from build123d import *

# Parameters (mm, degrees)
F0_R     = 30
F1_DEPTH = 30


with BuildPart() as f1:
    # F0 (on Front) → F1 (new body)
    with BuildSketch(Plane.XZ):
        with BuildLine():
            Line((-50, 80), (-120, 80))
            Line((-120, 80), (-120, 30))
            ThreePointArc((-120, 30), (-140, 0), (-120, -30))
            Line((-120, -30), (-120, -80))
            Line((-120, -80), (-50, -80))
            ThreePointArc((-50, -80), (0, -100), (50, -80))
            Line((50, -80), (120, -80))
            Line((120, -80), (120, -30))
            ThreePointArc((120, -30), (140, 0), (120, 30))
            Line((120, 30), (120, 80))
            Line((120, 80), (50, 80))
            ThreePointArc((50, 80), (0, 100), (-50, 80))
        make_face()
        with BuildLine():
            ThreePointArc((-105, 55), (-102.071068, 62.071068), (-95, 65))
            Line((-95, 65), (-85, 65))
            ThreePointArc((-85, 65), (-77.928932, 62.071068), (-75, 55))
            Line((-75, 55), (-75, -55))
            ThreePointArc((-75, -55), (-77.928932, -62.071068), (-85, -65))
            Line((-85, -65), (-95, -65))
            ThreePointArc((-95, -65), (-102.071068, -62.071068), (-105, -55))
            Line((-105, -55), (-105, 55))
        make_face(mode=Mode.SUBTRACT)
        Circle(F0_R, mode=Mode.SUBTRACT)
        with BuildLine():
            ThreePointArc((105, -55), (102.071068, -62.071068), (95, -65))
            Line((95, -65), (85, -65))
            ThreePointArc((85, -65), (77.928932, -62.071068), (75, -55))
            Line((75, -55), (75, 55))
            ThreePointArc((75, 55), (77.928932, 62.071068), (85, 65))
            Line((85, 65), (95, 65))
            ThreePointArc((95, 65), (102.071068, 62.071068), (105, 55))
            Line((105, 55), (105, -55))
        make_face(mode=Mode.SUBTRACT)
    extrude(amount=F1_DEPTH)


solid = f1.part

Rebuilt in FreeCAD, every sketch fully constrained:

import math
import FreeCAD as App
import Part
import Sketcher

doc = App.newDocument("Part")
body = doc.addObject("PartDesign::Body", "Body")

sketch1 = doc.addObject("Sketcher::SketchObject", "Sketch")
body.addObject(sketch1)
sketch1.AttachmentSupport = (doc.XZ_Plane, [""])
sketch1.MapMode = "FlatFace"
sketch1.addGeometry([
    Part.LineSegment(App.Vector(-50, 80, 0), App.Vector(-120, 80, 0)),
    Part.LineSegment(App.Vector(-120, 80, 0), App.Vector(-120, 30, 0)),
    Part.ArcOfCircle(Part.Circle(App.Vector(-108, 0, 0), App.Vector(0, 0, 1), 32), math.radians(113), math.radians(247)),
    Part.LineSegment(App.Vector(-120, -30, 0), App.Vector(-120, -80, 0)),
    Part.LineSegment(App.Vector(-120, -80, 0), App.Vector(-50, -80, 0)),
    Part.ArcOfCircle(Part.Circle(App.Vector(0, -28, 0), App.Vector(0, 0, 1), 72), math.radians(-134), math.radians(-46)),
    Part.LineSegment(App.Vector(50, -80, 0), App.Vector(120, -80, 0)),
    Part.LineSegment(App.Vector(120, -80, 0), App.Vector(120, -30, 0)),
    Part.ArcOfCircle(Part.Circle(App.Vector(108, 0, 0), App.Vector(0, 0, 1), 32), math.radians(-67), math.radians(67)),
    Part.LineSegment(App.Vector(120, 30, 0), App.Vector(120, 80, 0)),
    Part.LineSegment(App.Vector(120, 80, 0), App.Vector(50, 80, 0)),
    Part.ArcOfCircle(Part.Circle(App.Vector(0, 28, 0), App.Vector(0, 0, 1), 72), math.radians(46), math.radians(134)),
    Part.LineSegment(App.Vector(-105, -55, 0), App.Vector(-105, 55, 0)),
    Part.ArcOfCircle(Part.Circle(App.Vector(-95, 55, 0), App.Vector(0, 0, 1), 10), math.radians(90), math.radians(180)),
    Part.LineSegment(App.Vector(-95, 65, 0), App.Vector(-85, 65, 0)),
    Part.ArcOfCircle(Part.Circle(App.Vector(-85, 55, 0), App.Vector(0, 0, 1), 10), math.radians(0), math.radians(90)),
    Part.LineSegment(App.Vector(-75, 55, 0), App.Vector(-75, -55, 0)),
    Part.ArcOfCircle(Part.Circle(App.Vector(-85, -55, 0), App.Vector(0, 0, 1), 10), math.radians(-90), math.radians(0)),
    Part.LineSegment(App.Vector(-85, -65, 0), App.Vector(-95, -65, 0)),
    Part.ArcOfCircle(Part.Circle(App.Vector(-95, -55, 0), App.Vector(0, 0, 1), 10), math.radians(180), math.radians(270)),
    Part.Circle(App.Vector(0, 0, 0), App.Vector(0, 0, 1), 30),
    Part.LineSegment(App.Vector(105, 55, 0), App.Vector(105, -55, 0)),
    Part.ArcOfCircle(Part.Circle(App.Vector(95, -55, 0), App.Vector(0, 0, 1), 10), math.radians(-90), math.radians(0)),
    Part.LineSegment(App.Vector(95, -65, 0), App.Vector(85, -65, 0)),
    Part.ArcOfCircle(Part.Circle(App.Vector(85, -55, 0), App.Vector(0, 0, 1), 10), math.radians(180), math.radians(270)),
    Part.LineSegment(App.Vector(75, -55, 0), App.Vector(75, 55, 0)),
    Part.ArcOfCircle(Part.Circle(App.Vector(85, 55, 0), App.Vector(0, 0, 1), 10), math.radians(90), math.radians(180)),
    Part.LineSegment(App.Vector(85, 65, 0), App.Vector(95, 65, 0)),
    Part.ArcOfCircle(Part.Circle(App.Vector(95, 55, 0), App.Vector(0, 0, 1), 10), math.radians(0), math.radians(90)),
], False)
sketch1.addConstraint([
    Sketcher.Constraint("Coincident", 0, 2, 1, 1),
    Sketcher.Constraint("Coincident", 1, 2, 2, 1),
    Sketcher.Constraint("Coincident", 2, 2, 3, 1),
    Sketcher.Constraint("Coincident", 3, 2, 4, 1),
    Sketcher.Constraint("Coincident", 4, 2, 5, 1),
    Sketcher.Constraint("Coincident", 5, 2, 6, 1),
    Sketcher.Constraint("Coincident", 6, 2, 7, 1),
    Sketcher.Constraint("Coincident", 7, 2, 8, 1),
    Sketcher.Constraint("Coincident", 8, 2, 9, 1),
    Sketcher.Constraint("Coincident", 9, 2, 10, 1),
    Sketcher.Constraint("Coincident", 10, 2, 11, 1),
    Sketcher.Constraint("Coincident", 11, 2, 0, 1),
    Sketcher.Constraint("Tangent", 12, 2, 13, 2),
    Sketcher.Constraint("Tangent", 13, 1, 14, 1),
    Sketcher.Constraint("Tangent", 14, 2, 15, 2),
    Sketcher.Constraint("Tangent", 15, 1, 16, 1),
    Sketcher.Constraint("Tangent", 16, 2, 17, 2),
    Sketcher.Constraint("Tangent", 17, 1, 18, 1),
    Sketcher.Constraint("Tangent", 18, 2, 19, 2),
    Sketcher.Constraint("Tangent", 19, 1, 12, 1),
    Sketcher.Constraint("Tangent", 21, 2, 22, 2),
    Sketcher.Constraint("Tangent", 22, 1, 23, 1),
    Sketcher.Constraint("Tangent", 23, 2, 24, 2),
    Sketcher.Constraint("Tangent", 24, 1, 25, 1),
    Sketcher.Constraint("Tangent", 25, 2, 26, 2),
    Sketcher.Constraint("Tangent", 26, 1, 27, 1),
    Sketcher.Constraint("Tangent", 27, 2, 28, 2),
    Sketcher.Constraint("Tangent", 28, 1, 21, 1),
    Sketcher.Constraint("Horizontal", 0),
    Sketcher.Constraint("Vertical", 1),
    Sketcher.Constraint("Vertical", 3),
    Sketcher.Constraint("Horizontal", 4),
    Sketcher.Constraint("Horizontal", 6),
    Sketcher.Constraint("Vertical", 7),
    Sketcher.Constraint("Vertical", 9),
    Sketcher.Constraint("Horizontal", 10),
    Sketcher.Constraint("Vertical", 12),
    Sketcher.Constraint("Horizontal", 14),
    Sketcher.Constraint("Vertical", 16),
    Sketcher.Constraint("Horizontal", 18),
    Sketcher.Constraint("Vertical", 21),
    Sketcher.Constraint("Horizontal", 23),
    Sketcher.Constraint("Vertical", 25),
    Sketcher.Constraint("Horizontal", 27),
    Sketcher.Constraint("Coincident", 20, 3, -1, 1),
    Sketcher.Constraint("Equal", 2, 8),
    Sketcher.Constraint("Equal", 5, 11),
    Sketcher.Constraint("Equal", 13, 15),
    Sketcher.Constraint("Equal", 15, 17),
    Sketcher.Constraint("Equal", 17, 19),
    Sketcher.Constraint("Equal", 19, 22),
    Sketcher.Constraint("Equal", 22, 24),
    Sketcher.Constraint("Equal", 24, 26),
    Sketcher.Constraint("Equal", 26, 28),
    Sketcher.Constraint("Symmetric", 2, 3, 8, 3, -1, 1),
    Sketcher.Constraint("Symmetric", 5, 3, 11, 3, -1, 1),
    Sketcher.Constraint("Symmetric", 13, 3, 22, 3, -1, 1),
    Sketcher.Constraint("Symmetric", 17, 3, 26, 3, -1, 1),
    Sketcher.Constraint("Symmetric", 0, 2, 6, 2, -1, 1),
    Sketcher.Constraint("Symmetric", 3, 2, 9, 2, -1, 1),
    Sketcher.Constraint("Symmetric", 4, 2, 5, 2, -2),
    Sketcher.Constraint("Symmetric", 2, 2, 7, 2, -2),
    Sketcher.Constraint("Horizontal", 19, 3, 22, 3),
    Sketcher.Constraint("Diameter", 20, 60.0),
    Sketcher.Constraint("Radius", 13, 9.999999),
    Sketcher.Constraint("Radius", 2, 32.5),
    Sketcher.Constraint("Radius", 5, 72.5),
    Sketcher.Constraint("DistanceX", 0, 2, 0, 1, 70.0),
    Sketcher.Constraint("DistanceX", 14, 1, 14, 2, 10.0),
    Sketcher.Constraint("DistanceY", 1, 2, 1, 1, 50.0),
    Sketcher.Constraint("DistanceY", 12, 1, 12, 2, 110.0),
    Sketcher.Constraint("DistanceX", 13, 3, -1, 1, 95.000001),
    Sketcher.Constraint("DistanceX", 0, 2, -1, 1, 120.0),
    Sketcher.Constraint("DistanceY", -1, 1, 0, 2, 80.0),
])
pad1 = doc.addObject("PartDesign::Pad", "Pad")
body.addObject(pad1)
pad1.Profile = sketch1
pad1.Length = 30

doc.recompute()
